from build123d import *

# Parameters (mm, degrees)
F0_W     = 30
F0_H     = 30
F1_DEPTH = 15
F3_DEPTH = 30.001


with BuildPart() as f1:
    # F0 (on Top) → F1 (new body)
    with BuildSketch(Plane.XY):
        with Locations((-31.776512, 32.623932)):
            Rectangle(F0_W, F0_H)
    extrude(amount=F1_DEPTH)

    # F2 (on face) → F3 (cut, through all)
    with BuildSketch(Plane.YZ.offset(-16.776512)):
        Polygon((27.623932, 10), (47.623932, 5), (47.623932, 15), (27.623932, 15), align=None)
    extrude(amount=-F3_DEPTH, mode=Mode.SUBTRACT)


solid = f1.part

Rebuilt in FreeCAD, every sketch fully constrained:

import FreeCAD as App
import Part
import Sketcher

V = App.Vector


def add_polygon(sketch, points):
    """Adds a closed chain of lines whose ends are joined by coincident constraints."""
    first, n = sketch.GeometryCount, len(points)
    for a, b in zip(points, points[1:] + points[:1]):
        sketch.addGeometry(Part.LineSegment(App.Vector(*a, 0), App.Vector(*b, 0)), False)
    for i in range(n):
        sketch.addConstraint(Sketcher.Constraint("Coincident", first + i, 2, first + (i + 1) % n, 1))

doc = App.newDocument("Part")
body = doc.addObject("PartDesign::Body", "Body")

sketch1 = body.newObject("Sketcher::SketchObject", "Sketch")
sketch1.AttachmentSupport = (doc.getObject("XY_Plane"), [""])
sketch1.MapMode = "FlatFace"
add_polygon(sketch1, [(-47, 48), (-47, 18), (-17, 18), (-17, 48)])
sketch1.addConstraint([
    Sketcher.Constraint("Vertical", 0),
    Sketcher.Constraint("Horizontal", 1),
    Sketcher.Constraint("Vertical", 2),
    Sketcher.Constraint("Horizontal", 3),
    Sketcher.Constraint("Equal", 3, 0),
    Sketcher.Constraint("DistanceX", 1, 1, 1, 2, 30.0),
    Sketcher.Constraint("DistanceX", 0, 2, -1, 1, 46.776512),
    Sketcher.Constraint("DistanceY", -1, 1, 0, 2, 17.623932),
])
pad1 = body.newObject("PartDesign::Pad", "Pad")
pad1.Profile = sketch1
pad1.Length = 15

sketch2 = body.newObject("Sketcher::SketchObject", "Sketch001")
sketch2.AttachmentSupport = (doc.getObject("YZ_Plane"), [""])
sketch2.MapMode = "FlatFace"
sketch2.AttachmentOffset = App.Placement(V(0, 0, -16.776512), App.Rotation())
add_polygon(sketch2, [(28, 10), (48, 5), (48, 15), (28, 15)])
sketch2.addConstraint([
    Sketcher.Constraint("Vertical", 1),
    Sketcher.Constraint("Horizontal", 2),
    Sketcher.Constraint("Vertical", 3),
    Sketcher.Constraint("DistanceX", 2, 2, 2, 1, 20.0),
    Sketcher.Constraint("DistanceY", 1, 1, 1, 2, 10.0),
    Sketcher.Constraint("DistanceY", 3, 2, 3, 1, 5.0),
    Sketcher.Constraint("DistanceY", -1, 1, 0, 2, 5.0),
    Sketcher.Constraint("DistanceX", -1, 1, 2, 2, 27.623932),
])
pocket1 = body.newObject("PartDesign::Pocket", "Pocket")
pocket1.Profile = sketch2
pocket1.Type = "ThroughAll"

doc.recompute()
